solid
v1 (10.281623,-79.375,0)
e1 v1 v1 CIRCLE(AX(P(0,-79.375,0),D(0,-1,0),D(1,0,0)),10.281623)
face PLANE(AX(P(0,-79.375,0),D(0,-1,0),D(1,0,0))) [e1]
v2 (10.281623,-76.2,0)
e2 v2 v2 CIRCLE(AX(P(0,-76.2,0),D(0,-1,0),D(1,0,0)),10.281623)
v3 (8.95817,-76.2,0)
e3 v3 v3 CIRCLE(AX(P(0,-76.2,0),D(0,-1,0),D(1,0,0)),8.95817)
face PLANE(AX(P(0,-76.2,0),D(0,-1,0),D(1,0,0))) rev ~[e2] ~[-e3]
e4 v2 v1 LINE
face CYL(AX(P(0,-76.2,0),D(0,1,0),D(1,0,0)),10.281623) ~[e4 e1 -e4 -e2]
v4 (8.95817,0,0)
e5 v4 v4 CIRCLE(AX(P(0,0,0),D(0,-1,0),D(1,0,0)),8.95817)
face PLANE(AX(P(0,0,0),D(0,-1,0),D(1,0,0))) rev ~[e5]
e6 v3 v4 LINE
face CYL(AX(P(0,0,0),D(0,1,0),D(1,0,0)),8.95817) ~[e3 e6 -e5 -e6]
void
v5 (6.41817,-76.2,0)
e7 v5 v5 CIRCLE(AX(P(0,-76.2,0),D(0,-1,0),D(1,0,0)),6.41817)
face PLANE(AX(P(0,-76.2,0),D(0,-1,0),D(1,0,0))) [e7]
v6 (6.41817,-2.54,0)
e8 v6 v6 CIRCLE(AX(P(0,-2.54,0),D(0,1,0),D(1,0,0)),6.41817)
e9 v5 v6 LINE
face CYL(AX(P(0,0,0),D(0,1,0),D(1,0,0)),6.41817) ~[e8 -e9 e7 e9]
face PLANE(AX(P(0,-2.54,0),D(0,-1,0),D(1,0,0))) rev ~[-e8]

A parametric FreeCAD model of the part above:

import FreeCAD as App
import Part
import Sketcher
Q = App.Units.Quantity


def faces_at(feature, points):
    """Names of the faces that lie closest to the given points."""
    faces = feature.Shape.Faces
    near = lambda p: min(range(len(faces)), key=lambda i: faces[i].distToShape(Part.Vertex(*p))[0])
    return sorted({f"Face{near(p) + 1}" for p in points})

doc = App.newDocument("Part")
body = doc.addObject("PartDesign::Body", "Body")

sketch1 = body.newObject("Sketcher::SketchObject", "Sketch")
sketch1.AttachmentSupport = (doc.getObject("XZ_Plane"), [""])
sketch1.MapMode = "FlatFace"
sketch1.addGeometry(Part.Circle(App.Vector(0, 0, 0), App.Vector(0, 0, 1), 8.95817), False)
sketch1.addConstraint([
    Sketcher.Constraint("Coincident", 0, 3, -1, 1),
    Sketcher.Constraint("Diameter", 0, Q("17.91634 mm")),
])
pad1 = body.newObject("PartDesign::Pad", "Pad")
pad1.Profile = sketch1
pad1.Length = Q("0.54 in")

sketch2 = body.newObject("Sketcher::SketchObject", "Sketch001")
sketch2.AttachmentSupport = (doc.getObject("XZ_Plane"), [""])
sketch2.MapMode = "FlatFace"
sketch2.addGeometry(Part.Circle(App.Vector(0, 0, 0), App.Vector(0, 0, 1), 8.95817), False)
sketch2.addConstraint([
    Sketcher.Constraint("Coincident", 0, 3, -1, 1),
    Sketcher.Constraint("Diameter", 0, Q("17.91634 mm")),
])
pad2 = body.newObject("PartDesign::Pad", "Pad001")
pad2.Profile = sketch2
pad2.Length = Q("3 in")
doc.recompute()

thickness = body.newObject("PartDesign::Thickness", "Thickness")
thickness.Base = (pad2, faces_at(pad2, [(0, -76.2, 0)]))
thickness.Value = Q("0.1 in")
thickness.Reversed = True
thickness.Join = "Arc"

sketch3 = body.newObject("Sketcher::SketchObject", "Sketch002")
sketch3.AttachmentSupport = (doc.getObject("XZ_Plane"), [""])
sketch3.MapMode = "FlatFace"
sketch3.AttachmentOffset = App.Placement(App.Vector(0, 0, 3 * 25.4), App.Rotation())
sketch3.addGeometry(Part.Circle(App.Vector(0, 0, 0), App.Vector(0, 0, 1), 10.281623), False)
sketch3.addConstraint([
    Sketcher.Constraint("Coincident", 0, 3, -1, 1),
    Sketcher.Constraint("Diameter", 0, Q("20.563246 mm")),
])
pad3 = body.newObject("PartDesign::Pad", "Pad002")
pad3.Profile = sketch3
pad3.Length = Q("0.125 in")

doc.recompute()
